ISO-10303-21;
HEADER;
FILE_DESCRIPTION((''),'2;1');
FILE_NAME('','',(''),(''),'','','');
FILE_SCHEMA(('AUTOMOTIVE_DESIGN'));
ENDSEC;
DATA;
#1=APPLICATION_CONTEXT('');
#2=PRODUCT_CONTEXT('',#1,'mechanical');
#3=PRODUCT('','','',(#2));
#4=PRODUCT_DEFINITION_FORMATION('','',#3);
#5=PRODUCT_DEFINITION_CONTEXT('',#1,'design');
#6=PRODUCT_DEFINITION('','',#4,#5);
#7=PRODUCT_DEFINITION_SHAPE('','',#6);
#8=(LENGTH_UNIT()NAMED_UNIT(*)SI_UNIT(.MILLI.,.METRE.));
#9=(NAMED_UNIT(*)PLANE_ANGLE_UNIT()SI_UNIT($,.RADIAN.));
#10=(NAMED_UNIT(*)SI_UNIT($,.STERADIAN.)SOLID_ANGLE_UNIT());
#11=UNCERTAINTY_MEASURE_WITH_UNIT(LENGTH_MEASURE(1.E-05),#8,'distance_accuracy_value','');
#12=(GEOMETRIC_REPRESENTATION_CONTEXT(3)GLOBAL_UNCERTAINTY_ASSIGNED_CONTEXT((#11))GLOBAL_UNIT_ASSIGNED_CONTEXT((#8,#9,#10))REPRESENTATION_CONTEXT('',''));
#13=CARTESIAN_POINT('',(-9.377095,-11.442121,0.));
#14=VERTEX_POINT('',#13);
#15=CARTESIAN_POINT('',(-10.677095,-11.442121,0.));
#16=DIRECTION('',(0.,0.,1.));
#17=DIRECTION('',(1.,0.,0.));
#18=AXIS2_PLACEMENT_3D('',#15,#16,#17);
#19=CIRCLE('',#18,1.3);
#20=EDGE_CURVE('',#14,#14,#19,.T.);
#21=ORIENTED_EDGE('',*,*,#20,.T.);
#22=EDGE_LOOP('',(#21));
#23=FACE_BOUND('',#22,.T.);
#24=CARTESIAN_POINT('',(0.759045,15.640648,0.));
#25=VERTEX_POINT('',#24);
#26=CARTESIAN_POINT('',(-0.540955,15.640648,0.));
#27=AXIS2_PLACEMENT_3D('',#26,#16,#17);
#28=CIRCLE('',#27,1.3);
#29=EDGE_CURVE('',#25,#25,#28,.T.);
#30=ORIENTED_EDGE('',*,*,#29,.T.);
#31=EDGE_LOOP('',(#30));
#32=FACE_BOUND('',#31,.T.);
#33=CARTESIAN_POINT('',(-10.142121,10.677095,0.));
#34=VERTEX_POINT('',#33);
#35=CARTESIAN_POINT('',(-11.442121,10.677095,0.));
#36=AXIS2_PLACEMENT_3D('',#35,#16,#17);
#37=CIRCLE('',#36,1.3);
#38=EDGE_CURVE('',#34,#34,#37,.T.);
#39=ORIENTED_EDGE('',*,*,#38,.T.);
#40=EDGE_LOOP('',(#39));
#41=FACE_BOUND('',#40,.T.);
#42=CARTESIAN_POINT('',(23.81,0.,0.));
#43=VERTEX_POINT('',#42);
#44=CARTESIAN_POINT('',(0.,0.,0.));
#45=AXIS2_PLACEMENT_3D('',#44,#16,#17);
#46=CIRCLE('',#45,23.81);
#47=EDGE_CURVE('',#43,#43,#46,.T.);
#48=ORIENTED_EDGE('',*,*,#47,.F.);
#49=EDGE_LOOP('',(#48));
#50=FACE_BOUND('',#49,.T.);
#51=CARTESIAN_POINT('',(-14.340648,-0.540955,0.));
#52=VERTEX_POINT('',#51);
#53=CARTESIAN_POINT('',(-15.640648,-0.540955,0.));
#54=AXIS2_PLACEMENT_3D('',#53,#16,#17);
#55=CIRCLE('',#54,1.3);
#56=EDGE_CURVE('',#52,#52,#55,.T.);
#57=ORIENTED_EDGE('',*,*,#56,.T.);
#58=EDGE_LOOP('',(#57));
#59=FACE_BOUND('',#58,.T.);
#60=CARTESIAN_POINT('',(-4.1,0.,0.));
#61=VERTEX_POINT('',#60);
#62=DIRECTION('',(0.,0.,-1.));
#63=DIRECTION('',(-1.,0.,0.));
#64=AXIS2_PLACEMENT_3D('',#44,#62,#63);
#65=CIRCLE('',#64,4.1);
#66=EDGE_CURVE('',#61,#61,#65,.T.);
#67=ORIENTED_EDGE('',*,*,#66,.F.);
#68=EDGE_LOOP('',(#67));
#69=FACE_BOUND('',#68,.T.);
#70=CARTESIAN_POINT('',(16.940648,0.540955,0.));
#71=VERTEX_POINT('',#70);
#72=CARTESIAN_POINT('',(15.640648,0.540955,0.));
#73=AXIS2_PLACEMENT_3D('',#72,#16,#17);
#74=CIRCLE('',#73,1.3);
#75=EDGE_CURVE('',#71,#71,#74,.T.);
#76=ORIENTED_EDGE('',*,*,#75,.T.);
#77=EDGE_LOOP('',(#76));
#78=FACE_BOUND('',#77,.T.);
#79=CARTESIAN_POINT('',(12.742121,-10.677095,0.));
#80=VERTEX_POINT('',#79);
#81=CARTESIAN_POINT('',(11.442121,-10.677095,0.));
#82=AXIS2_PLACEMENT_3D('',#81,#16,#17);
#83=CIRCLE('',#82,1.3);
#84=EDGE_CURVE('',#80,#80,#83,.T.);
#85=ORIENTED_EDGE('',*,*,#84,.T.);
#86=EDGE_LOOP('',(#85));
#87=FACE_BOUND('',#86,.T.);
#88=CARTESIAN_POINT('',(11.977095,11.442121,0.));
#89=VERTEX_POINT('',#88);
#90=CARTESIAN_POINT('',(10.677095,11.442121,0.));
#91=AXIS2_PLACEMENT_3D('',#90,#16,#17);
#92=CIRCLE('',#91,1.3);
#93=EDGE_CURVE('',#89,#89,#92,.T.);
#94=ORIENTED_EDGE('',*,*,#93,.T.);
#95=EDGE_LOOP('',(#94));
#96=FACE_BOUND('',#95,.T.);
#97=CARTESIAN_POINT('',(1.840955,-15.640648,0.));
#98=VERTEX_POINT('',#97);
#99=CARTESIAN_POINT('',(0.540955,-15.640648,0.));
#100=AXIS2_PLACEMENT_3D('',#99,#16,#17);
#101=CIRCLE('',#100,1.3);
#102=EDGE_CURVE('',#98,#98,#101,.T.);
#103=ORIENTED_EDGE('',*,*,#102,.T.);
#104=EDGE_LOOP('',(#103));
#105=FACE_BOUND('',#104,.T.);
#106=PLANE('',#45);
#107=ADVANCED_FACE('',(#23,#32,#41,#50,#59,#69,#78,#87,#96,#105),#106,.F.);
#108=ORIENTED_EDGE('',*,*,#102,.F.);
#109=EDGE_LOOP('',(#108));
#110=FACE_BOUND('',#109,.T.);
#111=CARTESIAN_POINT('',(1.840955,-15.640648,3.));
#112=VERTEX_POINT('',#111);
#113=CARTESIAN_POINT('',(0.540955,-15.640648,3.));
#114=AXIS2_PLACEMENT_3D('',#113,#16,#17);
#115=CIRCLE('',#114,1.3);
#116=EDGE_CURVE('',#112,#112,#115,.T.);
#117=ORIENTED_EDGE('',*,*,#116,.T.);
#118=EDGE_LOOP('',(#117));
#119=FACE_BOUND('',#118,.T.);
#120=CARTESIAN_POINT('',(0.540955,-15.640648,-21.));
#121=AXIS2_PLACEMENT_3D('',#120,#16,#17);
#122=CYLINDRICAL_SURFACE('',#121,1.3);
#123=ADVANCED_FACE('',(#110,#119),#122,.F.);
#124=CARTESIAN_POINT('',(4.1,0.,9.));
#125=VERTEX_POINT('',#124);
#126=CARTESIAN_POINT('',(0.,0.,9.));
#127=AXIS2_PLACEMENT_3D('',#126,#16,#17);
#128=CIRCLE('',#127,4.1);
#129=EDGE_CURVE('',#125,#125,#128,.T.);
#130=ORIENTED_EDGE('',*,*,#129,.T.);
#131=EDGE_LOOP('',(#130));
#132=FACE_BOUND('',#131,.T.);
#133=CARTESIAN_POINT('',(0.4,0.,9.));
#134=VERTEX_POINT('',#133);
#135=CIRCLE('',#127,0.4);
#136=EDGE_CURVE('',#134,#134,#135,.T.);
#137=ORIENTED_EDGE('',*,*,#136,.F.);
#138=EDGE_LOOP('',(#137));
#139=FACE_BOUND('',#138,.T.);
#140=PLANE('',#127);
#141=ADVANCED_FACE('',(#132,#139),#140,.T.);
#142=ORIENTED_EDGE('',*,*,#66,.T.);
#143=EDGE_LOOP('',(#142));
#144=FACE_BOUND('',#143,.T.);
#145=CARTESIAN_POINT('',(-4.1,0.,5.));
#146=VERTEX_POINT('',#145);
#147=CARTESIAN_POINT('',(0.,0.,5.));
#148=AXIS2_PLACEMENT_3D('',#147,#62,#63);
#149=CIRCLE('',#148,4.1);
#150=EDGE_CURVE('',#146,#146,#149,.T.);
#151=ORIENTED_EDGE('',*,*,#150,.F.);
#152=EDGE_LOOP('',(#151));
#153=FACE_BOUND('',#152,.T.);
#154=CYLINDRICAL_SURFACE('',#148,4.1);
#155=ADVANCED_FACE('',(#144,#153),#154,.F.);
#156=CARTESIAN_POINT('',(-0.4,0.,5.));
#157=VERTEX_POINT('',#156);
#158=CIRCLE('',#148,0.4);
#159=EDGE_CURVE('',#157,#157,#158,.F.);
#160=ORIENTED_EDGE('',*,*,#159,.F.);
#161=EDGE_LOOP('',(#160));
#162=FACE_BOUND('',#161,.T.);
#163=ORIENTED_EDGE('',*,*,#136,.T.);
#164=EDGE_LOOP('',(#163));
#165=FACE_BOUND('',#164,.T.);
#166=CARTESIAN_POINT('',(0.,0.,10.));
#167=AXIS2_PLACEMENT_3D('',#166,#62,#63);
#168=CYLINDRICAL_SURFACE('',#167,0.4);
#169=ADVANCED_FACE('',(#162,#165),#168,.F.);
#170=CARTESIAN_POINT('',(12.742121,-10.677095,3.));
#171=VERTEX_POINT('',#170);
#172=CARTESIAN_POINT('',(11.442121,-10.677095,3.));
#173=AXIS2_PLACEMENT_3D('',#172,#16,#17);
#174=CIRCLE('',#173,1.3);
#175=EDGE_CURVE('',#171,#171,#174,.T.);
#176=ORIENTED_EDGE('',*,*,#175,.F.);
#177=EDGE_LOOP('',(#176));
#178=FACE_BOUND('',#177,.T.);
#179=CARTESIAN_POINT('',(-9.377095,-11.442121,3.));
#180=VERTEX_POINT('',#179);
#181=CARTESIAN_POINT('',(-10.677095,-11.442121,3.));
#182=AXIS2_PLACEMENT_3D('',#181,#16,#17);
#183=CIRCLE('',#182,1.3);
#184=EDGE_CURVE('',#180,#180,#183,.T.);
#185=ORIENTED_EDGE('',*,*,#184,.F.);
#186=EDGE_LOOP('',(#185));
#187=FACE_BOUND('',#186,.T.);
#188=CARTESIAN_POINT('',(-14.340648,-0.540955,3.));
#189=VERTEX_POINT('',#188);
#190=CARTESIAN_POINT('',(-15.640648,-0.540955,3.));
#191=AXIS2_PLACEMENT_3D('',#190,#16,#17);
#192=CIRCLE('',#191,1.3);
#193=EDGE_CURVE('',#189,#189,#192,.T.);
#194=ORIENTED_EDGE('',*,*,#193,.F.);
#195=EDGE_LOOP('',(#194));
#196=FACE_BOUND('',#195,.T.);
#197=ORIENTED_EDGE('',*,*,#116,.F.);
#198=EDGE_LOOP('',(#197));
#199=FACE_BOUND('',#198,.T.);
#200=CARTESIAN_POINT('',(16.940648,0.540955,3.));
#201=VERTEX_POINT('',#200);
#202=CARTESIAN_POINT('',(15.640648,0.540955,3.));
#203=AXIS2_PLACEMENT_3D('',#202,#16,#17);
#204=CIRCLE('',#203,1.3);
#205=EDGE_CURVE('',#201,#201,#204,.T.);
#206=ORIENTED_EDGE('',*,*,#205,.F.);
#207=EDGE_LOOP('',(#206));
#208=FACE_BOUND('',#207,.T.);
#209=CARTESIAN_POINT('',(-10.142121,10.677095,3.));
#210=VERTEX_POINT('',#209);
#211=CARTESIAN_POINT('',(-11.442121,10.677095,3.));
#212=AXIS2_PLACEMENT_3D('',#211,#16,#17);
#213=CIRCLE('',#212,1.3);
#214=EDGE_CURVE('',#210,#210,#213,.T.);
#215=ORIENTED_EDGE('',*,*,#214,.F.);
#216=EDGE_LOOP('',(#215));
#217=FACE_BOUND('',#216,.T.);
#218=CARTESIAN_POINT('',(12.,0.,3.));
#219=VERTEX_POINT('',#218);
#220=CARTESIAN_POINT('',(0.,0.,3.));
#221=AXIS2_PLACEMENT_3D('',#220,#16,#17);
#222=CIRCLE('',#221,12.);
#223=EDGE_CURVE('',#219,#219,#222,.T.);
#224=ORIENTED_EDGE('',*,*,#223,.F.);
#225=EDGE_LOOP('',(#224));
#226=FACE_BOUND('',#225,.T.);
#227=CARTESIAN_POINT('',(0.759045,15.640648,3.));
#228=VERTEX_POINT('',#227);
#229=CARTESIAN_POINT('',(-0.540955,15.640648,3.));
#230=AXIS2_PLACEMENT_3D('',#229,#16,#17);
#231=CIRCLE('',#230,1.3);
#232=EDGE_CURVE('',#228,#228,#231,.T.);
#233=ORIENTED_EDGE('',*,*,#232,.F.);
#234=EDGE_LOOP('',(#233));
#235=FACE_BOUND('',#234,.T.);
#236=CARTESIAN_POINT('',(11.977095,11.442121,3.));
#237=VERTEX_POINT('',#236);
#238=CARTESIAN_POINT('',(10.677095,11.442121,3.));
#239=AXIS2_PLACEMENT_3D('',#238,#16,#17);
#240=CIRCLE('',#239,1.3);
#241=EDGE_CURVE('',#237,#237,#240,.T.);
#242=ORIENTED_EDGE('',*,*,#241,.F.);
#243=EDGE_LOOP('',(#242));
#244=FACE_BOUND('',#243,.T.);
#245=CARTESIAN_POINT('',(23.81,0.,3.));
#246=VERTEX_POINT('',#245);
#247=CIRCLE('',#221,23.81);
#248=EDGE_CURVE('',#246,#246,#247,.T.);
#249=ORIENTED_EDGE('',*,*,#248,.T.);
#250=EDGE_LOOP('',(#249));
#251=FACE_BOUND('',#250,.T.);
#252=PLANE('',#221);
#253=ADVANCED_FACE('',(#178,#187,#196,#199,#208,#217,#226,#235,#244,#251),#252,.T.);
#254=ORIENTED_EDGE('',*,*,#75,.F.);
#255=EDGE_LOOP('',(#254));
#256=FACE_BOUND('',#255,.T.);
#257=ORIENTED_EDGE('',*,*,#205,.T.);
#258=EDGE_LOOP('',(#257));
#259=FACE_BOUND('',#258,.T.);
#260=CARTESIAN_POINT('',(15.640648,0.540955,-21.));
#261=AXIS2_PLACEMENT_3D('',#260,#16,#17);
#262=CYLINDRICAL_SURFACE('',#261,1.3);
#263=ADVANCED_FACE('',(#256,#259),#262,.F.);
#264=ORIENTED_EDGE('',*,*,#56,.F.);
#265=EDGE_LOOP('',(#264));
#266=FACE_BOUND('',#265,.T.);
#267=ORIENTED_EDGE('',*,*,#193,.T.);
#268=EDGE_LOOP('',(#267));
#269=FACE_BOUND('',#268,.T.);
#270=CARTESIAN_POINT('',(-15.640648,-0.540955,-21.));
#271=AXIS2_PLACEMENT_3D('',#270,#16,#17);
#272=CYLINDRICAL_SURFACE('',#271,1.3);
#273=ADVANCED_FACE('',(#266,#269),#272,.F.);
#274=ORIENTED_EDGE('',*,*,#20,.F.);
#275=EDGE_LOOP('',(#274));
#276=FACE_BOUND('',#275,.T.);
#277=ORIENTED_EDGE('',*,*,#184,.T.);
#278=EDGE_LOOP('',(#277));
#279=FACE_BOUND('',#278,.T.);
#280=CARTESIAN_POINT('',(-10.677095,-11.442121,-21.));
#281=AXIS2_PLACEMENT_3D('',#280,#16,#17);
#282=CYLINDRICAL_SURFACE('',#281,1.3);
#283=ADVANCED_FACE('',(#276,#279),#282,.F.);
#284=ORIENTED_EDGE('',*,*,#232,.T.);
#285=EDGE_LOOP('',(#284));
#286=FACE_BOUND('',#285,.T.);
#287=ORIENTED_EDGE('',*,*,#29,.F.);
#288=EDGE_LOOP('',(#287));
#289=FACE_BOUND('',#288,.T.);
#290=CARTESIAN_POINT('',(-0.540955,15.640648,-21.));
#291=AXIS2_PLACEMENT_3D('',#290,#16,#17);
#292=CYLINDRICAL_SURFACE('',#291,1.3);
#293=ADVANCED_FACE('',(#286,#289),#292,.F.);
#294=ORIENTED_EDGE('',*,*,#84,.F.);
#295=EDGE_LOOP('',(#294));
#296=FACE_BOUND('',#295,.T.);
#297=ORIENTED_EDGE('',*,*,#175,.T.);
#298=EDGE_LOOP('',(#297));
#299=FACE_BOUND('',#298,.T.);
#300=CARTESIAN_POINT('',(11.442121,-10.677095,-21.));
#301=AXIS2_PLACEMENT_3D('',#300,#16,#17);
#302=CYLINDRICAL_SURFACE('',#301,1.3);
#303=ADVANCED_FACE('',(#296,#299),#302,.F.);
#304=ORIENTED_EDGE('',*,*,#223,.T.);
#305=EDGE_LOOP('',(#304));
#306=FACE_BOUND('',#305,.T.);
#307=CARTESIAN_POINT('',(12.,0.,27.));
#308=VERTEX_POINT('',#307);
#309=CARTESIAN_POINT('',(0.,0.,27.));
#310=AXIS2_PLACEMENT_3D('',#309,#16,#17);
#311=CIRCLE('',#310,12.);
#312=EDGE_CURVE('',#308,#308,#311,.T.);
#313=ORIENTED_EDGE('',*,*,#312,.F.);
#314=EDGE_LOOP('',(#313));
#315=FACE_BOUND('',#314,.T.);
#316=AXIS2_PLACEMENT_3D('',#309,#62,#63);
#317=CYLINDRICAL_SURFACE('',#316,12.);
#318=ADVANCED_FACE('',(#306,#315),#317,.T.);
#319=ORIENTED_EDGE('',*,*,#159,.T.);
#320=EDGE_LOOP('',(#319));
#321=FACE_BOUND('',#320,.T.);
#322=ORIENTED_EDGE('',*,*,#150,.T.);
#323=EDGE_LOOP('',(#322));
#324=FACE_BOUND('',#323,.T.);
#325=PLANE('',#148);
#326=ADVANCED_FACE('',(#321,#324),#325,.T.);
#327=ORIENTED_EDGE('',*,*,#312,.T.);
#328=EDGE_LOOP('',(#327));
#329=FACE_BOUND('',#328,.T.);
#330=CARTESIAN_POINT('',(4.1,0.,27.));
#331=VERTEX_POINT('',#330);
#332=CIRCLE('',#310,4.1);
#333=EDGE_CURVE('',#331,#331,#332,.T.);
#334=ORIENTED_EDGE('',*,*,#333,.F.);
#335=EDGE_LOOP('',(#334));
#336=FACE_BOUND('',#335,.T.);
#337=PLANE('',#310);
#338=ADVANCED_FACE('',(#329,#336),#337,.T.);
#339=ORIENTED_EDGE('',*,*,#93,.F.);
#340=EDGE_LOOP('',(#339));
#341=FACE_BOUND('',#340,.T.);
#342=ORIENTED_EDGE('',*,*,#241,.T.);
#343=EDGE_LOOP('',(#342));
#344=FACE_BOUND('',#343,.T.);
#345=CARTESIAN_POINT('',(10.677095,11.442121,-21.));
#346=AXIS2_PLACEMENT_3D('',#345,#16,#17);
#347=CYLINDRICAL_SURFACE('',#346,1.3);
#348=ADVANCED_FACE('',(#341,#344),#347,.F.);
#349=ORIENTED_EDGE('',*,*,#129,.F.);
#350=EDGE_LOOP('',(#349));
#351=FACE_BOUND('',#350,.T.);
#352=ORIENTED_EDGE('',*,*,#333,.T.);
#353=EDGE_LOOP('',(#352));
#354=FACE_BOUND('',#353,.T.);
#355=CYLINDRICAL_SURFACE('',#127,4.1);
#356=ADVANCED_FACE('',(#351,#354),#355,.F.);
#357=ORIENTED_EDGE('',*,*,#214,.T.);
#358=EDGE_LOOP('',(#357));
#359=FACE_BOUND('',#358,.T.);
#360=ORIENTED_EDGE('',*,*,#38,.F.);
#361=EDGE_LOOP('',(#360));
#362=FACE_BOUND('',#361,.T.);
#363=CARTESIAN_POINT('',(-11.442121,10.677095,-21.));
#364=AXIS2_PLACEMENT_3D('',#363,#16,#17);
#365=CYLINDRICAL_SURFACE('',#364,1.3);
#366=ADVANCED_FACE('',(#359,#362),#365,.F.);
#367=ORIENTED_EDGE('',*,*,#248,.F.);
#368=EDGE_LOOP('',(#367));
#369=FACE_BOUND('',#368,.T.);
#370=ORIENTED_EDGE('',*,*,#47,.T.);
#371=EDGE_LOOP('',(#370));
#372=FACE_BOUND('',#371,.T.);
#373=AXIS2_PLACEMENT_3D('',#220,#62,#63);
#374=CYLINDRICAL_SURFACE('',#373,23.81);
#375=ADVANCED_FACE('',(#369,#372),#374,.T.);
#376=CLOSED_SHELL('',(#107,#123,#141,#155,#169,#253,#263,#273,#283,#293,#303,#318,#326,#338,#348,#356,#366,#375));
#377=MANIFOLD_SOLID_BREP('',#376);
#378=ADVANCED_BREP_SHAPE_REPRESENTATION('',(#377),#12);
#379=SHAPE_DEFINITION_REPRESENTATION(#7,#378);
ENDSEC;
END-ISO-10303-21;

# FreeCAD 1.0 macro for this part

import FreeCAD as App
import Part
import Sketcher
from FreeCAD import Vector

doc = App.newDocument("Part")
body = doc.addObject("PartDesign::Body", "Body")

sketch1 = doc.addObject("Sketcher::SketchObject", "Sketch")
body.addObject(sketch1)
sketch1.AttachmentSupport = (doc.XY_Plane, [""])
sketch1.MapMode = "FlatFace"
sketch1.addGeometry(Part.Circle(Vector(0, 0, 0), Vector(0, 0, 1), 24), False)
sketch1.addConstraint([
    Sketcher.Constraint("Coincident", 0, 3, -1, 1),
    Sketcher.Constraint("Diameter", 0, 47.62),
])
pad1 = doc.addObject("PartDesign::Pad", "Pad")
body.addObject(pad1)
pad1.Profile = sketch1
pad1.Length = 3

sketch2 = doc.addObject("Sketcher::SketchObject", "Sketch001")
body.addObject(sketch2)
sketch2.AttachmentSupport = (doc.XY_Plane, [""])
sketch2.MapMode = "FlatFace"
sketch2.AttachmentOffset = App.Placement(Vector(0, 0, 3), App.Rotation())
sketch2.addGeometry(Part.Circle(Vector(0, 0, 0), Vector(0, 0, 1), 12), False)
sketch2.addConstraint([
    Sketcher.Constraint("Coincident", 0, 3, -1, 1),
    Sketcher.Constraint("Diameter", 0, 24.0),
])
pad2 = doc.addObject("PartDesign::Pad", "Pad001")
body.addObject(pad2)
pad2.Profile = sketch2
pad2.Length = 24

sketch3 = doc.addObject("Sketcher::SketchObject", "Sketch002")
body.addObject(sketch3)
sketch3.AttachmentSupport = (doc.XY_Plane, [""])
sketch3.MapMode = "FlatFace"
sketch3.AttachmentOffset = App.Placement(Vector(0, 0, 3), App.Rotation())
sketch3.addGeometry([
    Part.Circle(Vector(-11.4, 10.7, 0), Vector(0, 0, 1), 1.3),
    Part.Circle(Vector(-0.5, 15.6, 0), Vector(0, 0, 1), 1.3),
    Part.Circle(Vector(10.7, 11.4, 0), Vector(0, 0, 1), 1.3),
    Part.Circle(Vector(15.6, 0.5, 0), Vector(0, 0, 1), 1.3),
    Part.Circle(Vector(11.4, -10.7, 0), Vector(0, 0, 1), 1.3),
    Part.Circle(Vector(0.5, -15.6, 0), Vector(0, 0, 1), 1.3),
    Part.Circle(Vector(-10.7, -11.4, 0), Vector(0, 0, 1), 1.3),
    Part.Circle(Vector(-15.6, -0.5, 0), Vector(0, 0, 1), 1.3),
], False)
sketch3.addConstraint([
    Sketcher.Constraint("Equal", 0, 1),
    Sketcher.Constraint("Equal", 1, 2),
    Sketcher.Constraint("Equal", 2, 3),
    Sketcher.Constraint("Equal", 3, 4),
    Sketcher.Constraint("Equal", 4, 5),
    Sketcher.Constraint("Equal", 5, 6),
    Sketcher.Constraint("Equal", 6, 7),
    Sketcher.Constraint("Symmetric", 0, 3, 4, 3, -1, 1),
    Sketcher.Constraint("Symmetric", 1, 3, 5, 3, -1, 1),
    Sketcher.Constraint("Symmetric", 2, 3, 6, 3, -1, 1),
    Sketcher.Constraint("Symmetric", 3, 3, 7, 3, -1, 1),
    Sketcher.Constraint("Diameter", 0, 2.6),
    Sketcher.Constraint("DistanceX", 0, 3, -1, 1, 11.442121),
    Sketcher.Constraint("DistanceY", -1, 1, 2, 3, 11.442121),
    Sketcher.Constraint("DistanceX", 1, 3, 2, 3, 11.21805),
    Sketcher.Constraint("DistanceX", 0, 3, 3, 3, 27.082769),
    Sketcher.Constraint("DistanceY", 3, 3, 0, 3, 10.136141),
    Sketcher.Constraint("DistanceY", 4, 3, 3, 3, 11.21805),
    Sketcher.Constraint("DistanceX", 5, 3, 2, 3, 10.136141),
    Sketcher.Constraint("DistanceY", 5, 3, 2, 3, 27.082769),
])
pocket1 = doc.addObject("PartDesign::Pocket", "Pocket")
body.addObject(pocket1)
pocket1.Profile = sketch3
pocket1.Length = 24

sketch4 = doc.addObject("Sketcher::SketchObject", "Sketch003")
body.addObject(sketch4)
sketch4.AttachmentSupport = (doc.XY_Plane, [""])
sketch4.MapMode = "FlatFace"
sketch4.AttachmentOffset = App.Placement(Vector(0, 0, 27), App.Rotation())
sketch4.addGeometry(Part.Circle(Vector(0, 0, 0), Vector(0, 0, 1), 4.1), False)
sketch4.addConstraint([
    Sketcher.Constraint("Coincident", 0, 3, -1, 1),
    Sketcher.Constraint("Diameter", 0, 8.2),
])
pocket2 = doc.addObject("PartDesign::Pocket", "Pocket001")
body.addObject(pocket2)
pocket2.Profile = sketch4
pocket2.Length = 18

sketch5 = doc.addObject("Sketcher::SketchObject", "Sketch004")
body.addObject(sketch5)
sketch5.AttachmentSupport = (doc.XY_Plane, [""])
sketch5.MapMode = "FlatFace"
sketch5.addGeometry(Part.Circle(Vector(0, 0, 0), Vector(0, 0, 1), 0.4), False)
sketch5.addConstraint([
    Sketcher.Constraint("Coincident", 0, 3, -1, 1),
    Sketcher.Constraint("Diameter", 0, 0.8),
])
pocket3 = doc.addObject("PartDesign::Pocket", "Pocket002")
body.addObject(pocket3)
pocket3.Profile = sketch5
pocket3.Length = 10
pocket3.Reversed = True

sketch6 = doc.addObject("Sketcher::SketchObject", "Sketch005")
body.addObject(sketch6)
sketch6.AttachmentSupport = (doc.XY_Plane, [""])
sketch6.MapMode = "FlatFace"
sketch6.AttachmentOffset = App.Placement(Vector(0, 0, 5), App.Rotation())
sketch6.addGeometry(Part.Circle(Vector(0, 0, 0), Vector(0, 0, 1), 4.1), False)
sketch6.addConstraint([
    Sketcher.Constraint("Coincident", 0, 3, -1, 1),
    Sketcher.Constraint("Diameter", 0, 8.2),
])
pocket4 = doc.addObject("PartDesign::Pocket", "Pocket003")
body.addObject(pocket4)
pocket4.Profile = sketch6
pocket4.Length = 5

doc.recompute()
